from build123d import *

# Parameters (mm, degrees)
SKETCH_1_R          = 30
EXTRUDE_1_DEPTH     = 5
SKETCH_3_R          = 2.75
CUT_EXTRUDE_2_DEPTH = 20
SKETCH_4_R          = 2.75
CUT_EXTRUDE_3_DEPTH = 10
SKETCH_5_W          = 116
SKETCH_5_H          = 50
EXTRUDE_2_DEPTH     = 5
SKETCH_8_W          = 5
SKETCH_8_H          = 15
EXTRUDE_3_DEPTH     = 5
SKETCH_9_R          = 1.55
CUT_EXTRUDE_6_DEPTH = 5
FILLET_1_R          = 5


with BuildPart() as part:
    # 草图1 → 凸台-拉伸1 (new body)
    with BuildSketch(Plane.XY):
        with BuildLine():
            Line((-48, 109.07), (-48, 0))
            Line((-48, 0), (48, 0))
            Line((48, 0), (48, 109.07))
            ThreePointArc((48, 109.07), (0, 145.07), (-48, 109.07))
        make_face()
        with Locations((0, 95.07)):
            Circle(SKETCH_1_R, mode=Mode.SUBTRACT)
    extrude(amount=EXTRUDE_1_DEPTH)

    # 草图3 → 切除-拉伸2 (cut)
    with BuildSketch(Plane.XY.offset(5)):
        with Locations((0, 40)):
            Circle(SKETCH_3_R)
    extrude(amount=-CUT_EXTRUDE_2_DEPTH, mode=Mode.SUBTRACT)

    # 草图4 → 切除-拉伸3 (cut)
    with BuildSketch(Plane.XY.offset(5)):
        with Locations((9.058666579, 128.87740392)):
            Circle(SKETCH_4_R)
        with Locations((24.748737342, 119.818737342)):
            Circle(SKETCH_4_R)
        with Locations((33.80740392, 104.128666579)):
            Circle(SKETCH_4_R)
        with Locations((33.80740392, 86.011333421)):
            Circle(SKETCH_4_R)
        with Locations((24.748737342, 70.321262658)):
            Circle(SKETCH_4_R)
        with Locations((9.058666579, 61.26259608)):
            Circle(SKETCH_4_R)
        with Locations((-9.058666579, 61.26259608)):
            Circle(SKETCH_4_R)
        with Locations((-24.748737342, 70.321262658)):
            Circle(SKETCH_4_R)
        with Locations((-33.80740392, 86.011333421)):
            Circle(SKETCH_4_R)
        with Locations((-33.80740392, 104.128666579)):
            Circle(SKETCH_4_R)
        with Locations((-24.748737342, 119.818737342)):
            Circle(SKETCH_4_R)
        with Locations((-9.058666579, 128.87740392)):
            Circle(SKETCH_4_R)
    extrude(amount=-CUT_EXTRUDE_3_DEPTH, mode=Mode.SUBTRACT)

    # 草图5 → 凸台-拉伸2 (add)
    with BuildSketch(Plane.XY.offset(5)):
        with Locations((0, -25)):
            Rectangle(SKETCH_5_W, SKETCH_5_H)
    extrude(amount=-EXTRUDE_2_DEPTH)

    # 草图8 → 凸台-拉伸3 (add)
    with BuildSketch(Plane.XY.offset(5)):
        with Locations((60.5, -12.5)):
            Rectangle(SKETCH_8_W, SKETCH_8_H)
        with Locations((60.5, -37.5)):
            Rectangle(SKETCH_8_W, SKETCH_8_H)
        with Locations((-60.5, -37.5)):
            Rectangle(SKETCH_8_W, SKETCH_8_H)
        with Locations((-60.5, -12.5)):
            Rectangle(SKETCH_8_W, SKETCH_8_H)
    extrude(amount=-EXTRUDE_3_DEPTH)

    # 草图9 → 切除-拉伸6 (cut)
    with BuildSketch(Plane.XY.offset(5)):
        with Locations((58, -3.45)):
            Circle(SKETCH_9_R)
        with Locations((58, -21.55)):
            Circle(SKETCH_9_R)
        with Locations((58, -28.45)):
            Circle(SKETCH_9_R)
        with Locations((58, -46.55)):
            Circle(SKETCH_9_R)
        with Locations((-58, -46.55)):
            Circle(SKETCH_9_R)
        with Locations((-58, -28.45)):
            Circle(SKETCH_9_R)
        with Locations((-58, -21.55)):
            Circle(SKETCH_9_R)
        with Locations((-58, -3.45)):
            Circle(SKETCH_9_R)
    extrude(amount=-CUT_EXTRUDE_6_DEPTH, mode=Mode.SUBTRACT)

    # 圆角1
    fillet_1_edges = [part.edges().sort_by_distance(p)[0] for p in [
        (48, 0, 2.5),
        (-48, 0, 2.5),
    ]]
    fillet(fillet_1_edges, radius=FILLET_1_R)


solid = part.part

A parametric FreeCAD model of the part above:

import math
import FreeCAD as App
import Part
import Sketcher

V = App.Vector
Q = App.Units.Quantity


def edges_at(feature, points):
    """Names of the edges that pass closest to the given points."""
    edges = feature.Shape.Edges
    near = lambda p: min(range(len(edges)), key=lambda i: edges[i].distToShape(Part.Vertex(*p))[0])
    return sorted({f"Edge{near(p) + 1}" for p in points})

doc = App.newDocument("Part")
body = doc.addObject("PartDesign::Body", "Body")

# Sketch on XY plane
sketch1 = body.newObject("Sketcher::SketchObject", "Sketch")
sketch1.AttachmentSupport = (doc.getObject("XY_Plane"), [""])
sketch1.MapMode = "FlatFace"
sketch1.addGeometry([
    Part.LineSegment(V(-48, 109.07, 0), V(-48, 0, 0)),  # 0
    Part.LineSegment(V(-48, 0, 0), V(48, 0, 0)),  # 1
    Part.LineSegment(V(48, 0, 0), V(48, 109.07, 0)),  # 2
    Part.ArcOfCircle(Part.Circle(V(0, 95.07, 0), V(0, 0, 1), 50), math.radians(16.260205), math.radians(163.739795)),  # 3
    Part.Circle(V(0, 95.07, 0), V(0, 0, 1), 30),  # 4
], False)
sketch1.addConstraint([
    Sketcher.Constraint("Coincident", 0, 2, 1, 1),
    Sketcher.Constraint("Coincident", 1, 2, 2, 1),
    Sketcher.Constraint("Coincident", 2, 2, 3, 1),
    Sketcher.Constraint("Coincident", 3, 2, 0, 1),
    Sketcher.Constraint("Vertical", 0),
    Sketcher.Constraint("Horizontal", 1),
    Sketcher.Constraint("Vertical", 2),
    Sketcher.Constraint("Coincident", 4, 3, 3, 3),
    Sketcher.Constraint("Symmetric", 0, 2, 1, 2, -1, 1),
    Sketcher.Constraint("PointOnObject", 3, 3, -2),
    Sketcher.Constraint("Diameter", 4, Q("60 mm")),
    Sketcher.Constraint("Radius", 3, Q("50 mm")),
    Sketcher.Constraint("DistanceX", 1, 1, 1, 2, Q("96 mm")),
    Sketcher.Constraint("DistanceY", 0, 2, 0, 1, Q("109.07 mm")),
])
pad1 = body.newObject("PartDesign::Pad", "Pad")
pad1.Profile = sketch1
pad1.Length = 5

# Sketch on XY plane
sketch2 = body.newObject("Sketcher::SketchObject", "Sketch001")
sketch2.AttachmentSupport = (doc.getObject("XY_Plane"), [""])
sketch2.MapMode = "FlatFace"
sketch2.AttachmentOffset = App.Placement(V(0, 0, 5), App.Rotation())
sketch2.addGeometry(Part.Circle(V(0, 40, 0), V(0, 0, 1), 2.75), False)
sketch2.addConstraint([
    Sketcher.Constraint("PointOnObject", 0, 3, -2),
    Sketcher.Constraint("Diameter", 0, Q("5.5 mm")),
    Sketcher.Constraint("DistanceY", -1, 1, 0, 3, Q("40 mm")),
])
pocket1 = body.newObject("PartDesign::Pocket", "Pocket")
pocket1.Profile = sketch2
pocket1.Length = 20

# Sketch on XY plane
sketch3 = body.newObject("Sketcher::SketchObject", "Sketch002")
sketch3.AttachmentSupport = (doc.getObject("XY_Plane"), [""])
sketch3.MapMode = "FlatFace"
sketch3.AttachmentOffset = App.Placement(V(0, 0, 5), App.Rotation())
sketch3.addGeometry([
    Part.Circle(V(9.058667, 128.877404, 0), V(0, 0, 1), 2.75),  # 0
    Part.Circle(V(24.748737, 119.818737, 0), V(0, 0, 1), 2.75),  # 1
    Part.Circle(V(33.807404, 104.128667, 0), V(0, 0, 1), 2.75),  # 2
    Part.Circle(V(33.807404, 86.011333, 0), V(0, 0, 1), 2.75),  # 3
    Part.Circle(V(24.748737, 70.321263, 0), V(0, 0, 1), 2.75),  # 4
    Part.Circle(V(9.058667, 61.262596, 0), V(0, 0, 1), 2.75),  # 5
    Part.Circle(V(-9.058667, 61.262596, 0), V(0, 0, 1), 2.75),  # 6
    Part.Circle(V(-24.748737, 70.321263, 0), V(0, 0, 1), 2.75),  # 7
    Part.Circle(V(-33.807404, 86.011333, 0), V(0, 0, 1), 2.75),  # 8
    Part.Circle(V(-33.807404, 104.128667, 0), V(0, 0, 1), 2.75),  # 9
    Part.Circle(V(-24.748737, 119.818737, 0), V(0, 0, 1), 2.75),  # 10
    Part.Circle(V(-9.058667, 128.877404, 0), V(0, 0, 1), 2.75),  # 11
], False)
sketch3.addConstraint([
    Sketcher.Constraint("Equal", 0, 1),
    Sketcher.Constraint("Equal", 1, 2),
    Sketcher.Constraint("Equal", 2, 3),
    Sketcher.Constraint("Equal", 3, 4),
    Sketcher.Constraint("Equal", 4, 5),
    Sketcher.Constraint("Equal", 5, 6),
    Sketcher.Constraint("Equal", 6, 7),
    Sketcher.Constraint("Equal", 7, 8),
    Sketcher.Constraint("Equal", 8, 9),
    Sketcher.Constraint("Equal", 9, 10),
    Sketcher.Constraint("Equal", 10, 11),
    Sketcher.Constraint("Symmetric", 5, 3, 6, 3, -2),
    Sketcher.Constraint("Symmetric", 4, 3, 7, 3, -2),
    Sketcher.Constraint("Symmetric", 3, 3, 8, 3, -2),
    Sketcher.Constraint("Symmetric", 2, 3, 9, 3, -2),
    Sketcher.Constraint("Symmetric", 1, 3, 10, 3, -2),
    Sketcher.Constraint("Symmetric", 0, 3, 11, 3, -2),
    Sketcher.Constraint("Vertical", 2, 3, 3, 3),
    Sketcher.Constraint("Vertical", 1, 3, 4, 3),
    Sketcher.Constraint("Vertical", 0, 3, 5, 3),
    Sketcher.Constraint("Diameter", 0, Q("5.5 mm")),
    Sketcher.Constraint("DistanceX", 0, 3, 1, 3, Q("15.690071 mm")),
    Sketcher.Constraint("DistanceY", 2, 3, 1, 3, Q("15.690071 mm")),
    Sketcher.Constraint("DistanceY", 3, 3, 0, 3, Q("42.86607 mm")),
    Sketcher.Constraint("DistanceY", 4, 3, 3, 3, Q("15.690071 mm")),
    Sketcher.Constraint("DistanceY", 5, 3, 2, 3, Q("42.86607 mm")),
    Sketcher.Constraint("DistanceX", 6, 3, 3, 3, Q("42.86607 mm")),
    Sketcher.Constraint("DistanceX", -1, 1, 0, 3, Q("9.058667 mm")),
    Sketcher.Constraint("DistanceY", -1, 1, 0, 3, Q("128.877404 mm")),
    Sketcher.Constraint("DistanceY", -1, 1, 1, 3, Q("119.818737 mm")),
])
pocket2 = body.newObject("PartDesign::Pocket", "Pocket001")
pocket2.Profile = sketch3
pocket2.Length = 10

# Sketch on XY plane
sketch4 = body.newObject("Sketcher::SketchObject", "Sketch003")
sketch4.AttachmentSupport = (doc.getObject("XY_Plane"), [""])
sketch4.MapMode = "FlatFace"
sketch4.AttachmentOffset = App.Placement(V(0, 0, 5), App.Rotation())
sketch4.addGeometry([
    Part.LineSegment(V(-58, 0, 0), V(-58, -50, 0)),
    Part.LineSegment(V(-58, -50, 0), V(58, -50, 0)),
    Part.LineSegment(V(58, -50, 0), V(58, 0, 0)),
    Part.LineSegment(V(58, 0, 0), V(-58, 0, 0)),
], False)
sketch4.addConstraint([
    Sketcher.Constraint("Coincident", 0, 2, 1, 1),
    Sketcher.Constraint("Coincident", 1, 2, 2, 1),
    Sketcher.Constraint("Coincident", 2, 2, 3, 1),
    Sketcher.Constraint("Coincident", 3, 2, 0, 1),
    Sketcher.Constraint("Vertical", 0),
    Sketcher.Constraint("Horizontal", 1),
    Sketcher.Constraint("Vertical", 2),
    Sketcher.Constraint("Horizontal", 3),
    Sketcher.Constraint("Symmetric", 2, 2, 3, 2, -1, 1),
    Sketcher.Constraint("DistanceX", 1, 1, 1, 2, Q("116 mm")),
    Sketcher.Constraint("DistanceY", 0, 2, 0, 1, Q("50 mm")),
])
pad2 = body.newObject("PartDesign::Pad", "Pad001")
pad2.Profile = sketch4
pad2.Length = 5
pad2.Reversed = True

# Sketch on XY plane
sketch5 = body.newObject("Sketcher::SketchObject", "Sketch004")
sketch5.AttachmentSupport = (doc.getObject("XY_Plane"), [""])
sketch5.MapMode = "FlatFace"
sketch5.AttachmentOffset = App.Placement(V(0, 0, 5), App.Rotation())
sketch5.addGeometry([
    Part.LineSegment(V(58, -5, 0), V(58, -20, 0)),  # 0
    Part.LineSegment(V(58, -20, 0), V(63, -20, 0)),  # 1
    Part.LineSegment(V(63, -20, 0), V(63, -5, 0)),  # 2
    Part.LineSegment(V(63, -5, 0), V(58, -5, 0)),  # 3
    Part.LineSegment(V(58, -30, 0), V(58, -45, 0)),  # 4
    Part.LineSegment(V(58, -45, 0), V(63, -45, 0)),  # 5
    Part.LineSegment(V(63, -45, 0), V(63, -30, 0)),  # 6
    Part.LineSegment(V(63, -30, 0), V(58, -30, 0)),  # 7
    Part.LineSegment(V(-63, -30, 0), V(-63, -45, 0)),  # 8
    Part.LineSegment(V(-63, -45, 0), V(-58, -45, 0)),  # 9
    Part.LineSegment(V(-58, -45, 0), V(-58, -30, 0)),  # 10
    Part.LineSegment(V(-58, -30, 0), V(-63, -30, 0)),  # 11
    Part.LineSegment(V(-63, -5, 0), V(-63, -20, 0)),  # 12
    Part.LineSegment(V(-63, -20, 0), V(-58, -20, 0)),  # 13
    Part.LineSegment(V(-58, -20, 0), V(-58, -5, 0)),  # 14
    Part.LineSegment(V(-58, -5, 0), V(-63, -5, 0)),  # 15
], False)
sketch5.addConstraint([
    Sketcher.Constraint("Coincident", 0, 2, 1, 1),
    Sketcher.Constraint("Coincident", 1, 2, 2, 1),
    Sketcher.Constraint("Coincident", 2, 2, 3, 1),
    Sketcher.Constraint("Coincident", 3, 2, 0, 1),
    Sketcher.Constraint("Coincident", 4, 2, 5, 1),
    Sketcher.Constraint("Coincident", 5, 2, 6, 1),
    Sketcher.Constraint("Coincident", 6, 2, 7, 1),
    Sketcher.Constraint("Coincident", 7, 2, 4, 1),
    Sketcher.Constraint("Coincident", 8, 2, 9, 1),
    Sketcher.Constraint("Coincident", 9, 2, 10, 1),
    Sketcher.Constraint("Coincident", 10, 2, 11, 1),
    Sketcher.Constraint("Coincident", 11, 2, 8, 1),
    Sketcher.Constraint("Coincident", 12, 2, 13, 1),
    Sketcher.Constraint("Coincident", 13, 2, 14, 1),
    Sketcher.Constraint("Coincident", 14, 2, 15, 1),
    Sketcher.Constraint("Coincident", 15, 2, 12, 1),
    Sketcher.Constraint("Vertical", 0),
    Sketcher.Constraint("Horizontal", 1),
    Sketcher.Constraint("Vertical", 2),
    Sketcher.Constraint("Horizontal", 3),
    Sketcher.Constraint("Vertical", 4),
    Sketcher.Constraint("Horizontal", 5),
    Sketcher.Constraint("Vertical", 6),
    Sketcher.Constraint("Horizontal", 7),
    Sketcher.Constraint("Vertical", 8),
    Sketcher.Constraint("Horizontal", 9),
    Sketcher.Constraint("Vertical", 10),
    Sketcher.Constraint("Horizontal", 11),
    Sketcher.Constraint("Vertical", 12),
    Sketcher.Constraint("Horizontal", 13),
    Sketcher.Constraint("Vertical", 14),
    Sketcher.Constraint("Horizontal", 15),
    Sketcher.Constraint("Symmetric", 5, 2, 8, 2, -2),
    Sketcher.Constraint("Symmetric", 7, 2, 10, 2, -2),
    Sketcher.Constraint("Symmetric", 1, 2, 12, 2, -2),
    Sketcher.Constraint("Symmetric", 3, 2, 14, 2, -2),
    Sketcher.Constraint("Vertical", 3, 2, 4, 2),
    Sketcher.Constraint("Vertical", 2, 2, 5, 2),
    Sketcher.Constraint("Equal", 2, 4),
    Sketcher.Constraint("DistanceX", 1, 1, 1, 2, Q("5 mm")),
    Sketcher.Constraint("DistanceY", 0, 2, 0, 1, Q("15 mm")),
    Sketcher.Constraint("DistanceX", -1, 1, 0, 2, Q("58 mm")),
    Sketcher.Constraint("DistanceY", 0, 2, -1, 1, Q("20 mm")),
    Sketcher.Constraint("DistanceY", 4, 2, -1, 1, Q("45 mm")),
])
pad3 = body.newObject("PartDesign::Pad", "Pad002")
pad3.Profile = sketch5
pad3.Length = 5
pad3.Reversed = True

# Sketch on XY plane
sketch6 = body.newObject("Sketcher::SketchObject", "Sketch005")
sketch6.AttachmentSupport = (doc.getObject("XY_Plane"), [""])
sketch6.MapMode = "FlatFace"
sketch6.AttachmentOffset = App.Placement(V(0, 0, 5), App.Rotation())
sketch6.addGeometry([
    Part.Circle(V(58, -3.45, 0), V(0, 0, 1), 1.55),  # 0
    Part.Circle(V(58, -21.55, 0), V(0, 0, 1), 1.55),  # 1
    Part.Circle(V(58, -28.45, 0), V(0, 0, 1), 1.55),  # 2
    Part.Circle(V(58, -46.55, 0), V(0, 0, 1), 1.55),  # 3
    Part.Circle(V(-58, -46.55, 0), V(0, 0, 1), 1.55),  # 4
    Part.Circle(V(-58, -28.45, 0), V(0, 0, 1), 1.55),  # 5
    Part.Circle(V(-58, -21.55, 0), V(0, 0, 1), 1.55),  # 6
    Part.Circle(V(-58, -3.45, 0), V(0, 0, 1), 1.55),  # 7
], False)
sketch6.addConstraint([
    Sketcher.Constraint("Equal", 0, 1),
    Sketcher.Constraint("Equal", 1, 2),
    Sketcher.Constraint("Equal", 2, 3),
    Sketcher.Constraint("Equal", 3, 4),
    Sketcher.Constraint("Equal", 4, 5),
    Sketcher.Constraint("Equal", 5, 6),
    Sketcher.Constraint("Equal", 6, 7),
    Sketcher.Constraint("Symmetric", 3, 3, 4, 3, -2),
    Sketcher.Constraint("Symmetric", 2, 3, 5, 3, -2),
    Sketcher.Constraint("Symmetric", 1, 3, 6, 3, -2),
    Sketcher.Constraint("Symmetric", 0, 3, 7, 3, -2),
    Sketcher.Constraint("Vertical", 0, 3, 1, 3),
    Sketcher.Constraint("Vertical", 1, 3, 2, 3),
    Sketcher.Constraint("Vertical", 2, 3, 3, 3),
    Sketcher.Constraint("Diameter", 0, Q("3.1 mm")),
    Sketcher.Constraint("DistanceX", -1, 1, 0, 3, Q("58 mm")),
    Sketcher.Constraint("DistanceY", 2, 3, 0, 3, Q("25 mm")),
    Sketcher.Constraint("DistanceY", 3, 3, 1, 3, Q("25 mm")),
    Sketcher.Constraint("DistanceY", 1, 3, 0, 3, Q("18.1 mm")),
    Sketcher.Constraint("DistanceY", 0, 3, -1, 1, Q("3.45 mm")),
])
pocket3 = body.newObject("PartDesign::Pocket", "Pocket002")
pocket3.Profile = sketch6
pocket3.Length = 5
doc.recompute()

fillet = body.newObject("PartDesign::Fillet", "Fillet")
fillet.Base = (pocket3, edges_at(pocket3, [(48, 0, 2.5), (-48, 0, 2.5)]))
fillet.Radius = 5

doc.recompute()
